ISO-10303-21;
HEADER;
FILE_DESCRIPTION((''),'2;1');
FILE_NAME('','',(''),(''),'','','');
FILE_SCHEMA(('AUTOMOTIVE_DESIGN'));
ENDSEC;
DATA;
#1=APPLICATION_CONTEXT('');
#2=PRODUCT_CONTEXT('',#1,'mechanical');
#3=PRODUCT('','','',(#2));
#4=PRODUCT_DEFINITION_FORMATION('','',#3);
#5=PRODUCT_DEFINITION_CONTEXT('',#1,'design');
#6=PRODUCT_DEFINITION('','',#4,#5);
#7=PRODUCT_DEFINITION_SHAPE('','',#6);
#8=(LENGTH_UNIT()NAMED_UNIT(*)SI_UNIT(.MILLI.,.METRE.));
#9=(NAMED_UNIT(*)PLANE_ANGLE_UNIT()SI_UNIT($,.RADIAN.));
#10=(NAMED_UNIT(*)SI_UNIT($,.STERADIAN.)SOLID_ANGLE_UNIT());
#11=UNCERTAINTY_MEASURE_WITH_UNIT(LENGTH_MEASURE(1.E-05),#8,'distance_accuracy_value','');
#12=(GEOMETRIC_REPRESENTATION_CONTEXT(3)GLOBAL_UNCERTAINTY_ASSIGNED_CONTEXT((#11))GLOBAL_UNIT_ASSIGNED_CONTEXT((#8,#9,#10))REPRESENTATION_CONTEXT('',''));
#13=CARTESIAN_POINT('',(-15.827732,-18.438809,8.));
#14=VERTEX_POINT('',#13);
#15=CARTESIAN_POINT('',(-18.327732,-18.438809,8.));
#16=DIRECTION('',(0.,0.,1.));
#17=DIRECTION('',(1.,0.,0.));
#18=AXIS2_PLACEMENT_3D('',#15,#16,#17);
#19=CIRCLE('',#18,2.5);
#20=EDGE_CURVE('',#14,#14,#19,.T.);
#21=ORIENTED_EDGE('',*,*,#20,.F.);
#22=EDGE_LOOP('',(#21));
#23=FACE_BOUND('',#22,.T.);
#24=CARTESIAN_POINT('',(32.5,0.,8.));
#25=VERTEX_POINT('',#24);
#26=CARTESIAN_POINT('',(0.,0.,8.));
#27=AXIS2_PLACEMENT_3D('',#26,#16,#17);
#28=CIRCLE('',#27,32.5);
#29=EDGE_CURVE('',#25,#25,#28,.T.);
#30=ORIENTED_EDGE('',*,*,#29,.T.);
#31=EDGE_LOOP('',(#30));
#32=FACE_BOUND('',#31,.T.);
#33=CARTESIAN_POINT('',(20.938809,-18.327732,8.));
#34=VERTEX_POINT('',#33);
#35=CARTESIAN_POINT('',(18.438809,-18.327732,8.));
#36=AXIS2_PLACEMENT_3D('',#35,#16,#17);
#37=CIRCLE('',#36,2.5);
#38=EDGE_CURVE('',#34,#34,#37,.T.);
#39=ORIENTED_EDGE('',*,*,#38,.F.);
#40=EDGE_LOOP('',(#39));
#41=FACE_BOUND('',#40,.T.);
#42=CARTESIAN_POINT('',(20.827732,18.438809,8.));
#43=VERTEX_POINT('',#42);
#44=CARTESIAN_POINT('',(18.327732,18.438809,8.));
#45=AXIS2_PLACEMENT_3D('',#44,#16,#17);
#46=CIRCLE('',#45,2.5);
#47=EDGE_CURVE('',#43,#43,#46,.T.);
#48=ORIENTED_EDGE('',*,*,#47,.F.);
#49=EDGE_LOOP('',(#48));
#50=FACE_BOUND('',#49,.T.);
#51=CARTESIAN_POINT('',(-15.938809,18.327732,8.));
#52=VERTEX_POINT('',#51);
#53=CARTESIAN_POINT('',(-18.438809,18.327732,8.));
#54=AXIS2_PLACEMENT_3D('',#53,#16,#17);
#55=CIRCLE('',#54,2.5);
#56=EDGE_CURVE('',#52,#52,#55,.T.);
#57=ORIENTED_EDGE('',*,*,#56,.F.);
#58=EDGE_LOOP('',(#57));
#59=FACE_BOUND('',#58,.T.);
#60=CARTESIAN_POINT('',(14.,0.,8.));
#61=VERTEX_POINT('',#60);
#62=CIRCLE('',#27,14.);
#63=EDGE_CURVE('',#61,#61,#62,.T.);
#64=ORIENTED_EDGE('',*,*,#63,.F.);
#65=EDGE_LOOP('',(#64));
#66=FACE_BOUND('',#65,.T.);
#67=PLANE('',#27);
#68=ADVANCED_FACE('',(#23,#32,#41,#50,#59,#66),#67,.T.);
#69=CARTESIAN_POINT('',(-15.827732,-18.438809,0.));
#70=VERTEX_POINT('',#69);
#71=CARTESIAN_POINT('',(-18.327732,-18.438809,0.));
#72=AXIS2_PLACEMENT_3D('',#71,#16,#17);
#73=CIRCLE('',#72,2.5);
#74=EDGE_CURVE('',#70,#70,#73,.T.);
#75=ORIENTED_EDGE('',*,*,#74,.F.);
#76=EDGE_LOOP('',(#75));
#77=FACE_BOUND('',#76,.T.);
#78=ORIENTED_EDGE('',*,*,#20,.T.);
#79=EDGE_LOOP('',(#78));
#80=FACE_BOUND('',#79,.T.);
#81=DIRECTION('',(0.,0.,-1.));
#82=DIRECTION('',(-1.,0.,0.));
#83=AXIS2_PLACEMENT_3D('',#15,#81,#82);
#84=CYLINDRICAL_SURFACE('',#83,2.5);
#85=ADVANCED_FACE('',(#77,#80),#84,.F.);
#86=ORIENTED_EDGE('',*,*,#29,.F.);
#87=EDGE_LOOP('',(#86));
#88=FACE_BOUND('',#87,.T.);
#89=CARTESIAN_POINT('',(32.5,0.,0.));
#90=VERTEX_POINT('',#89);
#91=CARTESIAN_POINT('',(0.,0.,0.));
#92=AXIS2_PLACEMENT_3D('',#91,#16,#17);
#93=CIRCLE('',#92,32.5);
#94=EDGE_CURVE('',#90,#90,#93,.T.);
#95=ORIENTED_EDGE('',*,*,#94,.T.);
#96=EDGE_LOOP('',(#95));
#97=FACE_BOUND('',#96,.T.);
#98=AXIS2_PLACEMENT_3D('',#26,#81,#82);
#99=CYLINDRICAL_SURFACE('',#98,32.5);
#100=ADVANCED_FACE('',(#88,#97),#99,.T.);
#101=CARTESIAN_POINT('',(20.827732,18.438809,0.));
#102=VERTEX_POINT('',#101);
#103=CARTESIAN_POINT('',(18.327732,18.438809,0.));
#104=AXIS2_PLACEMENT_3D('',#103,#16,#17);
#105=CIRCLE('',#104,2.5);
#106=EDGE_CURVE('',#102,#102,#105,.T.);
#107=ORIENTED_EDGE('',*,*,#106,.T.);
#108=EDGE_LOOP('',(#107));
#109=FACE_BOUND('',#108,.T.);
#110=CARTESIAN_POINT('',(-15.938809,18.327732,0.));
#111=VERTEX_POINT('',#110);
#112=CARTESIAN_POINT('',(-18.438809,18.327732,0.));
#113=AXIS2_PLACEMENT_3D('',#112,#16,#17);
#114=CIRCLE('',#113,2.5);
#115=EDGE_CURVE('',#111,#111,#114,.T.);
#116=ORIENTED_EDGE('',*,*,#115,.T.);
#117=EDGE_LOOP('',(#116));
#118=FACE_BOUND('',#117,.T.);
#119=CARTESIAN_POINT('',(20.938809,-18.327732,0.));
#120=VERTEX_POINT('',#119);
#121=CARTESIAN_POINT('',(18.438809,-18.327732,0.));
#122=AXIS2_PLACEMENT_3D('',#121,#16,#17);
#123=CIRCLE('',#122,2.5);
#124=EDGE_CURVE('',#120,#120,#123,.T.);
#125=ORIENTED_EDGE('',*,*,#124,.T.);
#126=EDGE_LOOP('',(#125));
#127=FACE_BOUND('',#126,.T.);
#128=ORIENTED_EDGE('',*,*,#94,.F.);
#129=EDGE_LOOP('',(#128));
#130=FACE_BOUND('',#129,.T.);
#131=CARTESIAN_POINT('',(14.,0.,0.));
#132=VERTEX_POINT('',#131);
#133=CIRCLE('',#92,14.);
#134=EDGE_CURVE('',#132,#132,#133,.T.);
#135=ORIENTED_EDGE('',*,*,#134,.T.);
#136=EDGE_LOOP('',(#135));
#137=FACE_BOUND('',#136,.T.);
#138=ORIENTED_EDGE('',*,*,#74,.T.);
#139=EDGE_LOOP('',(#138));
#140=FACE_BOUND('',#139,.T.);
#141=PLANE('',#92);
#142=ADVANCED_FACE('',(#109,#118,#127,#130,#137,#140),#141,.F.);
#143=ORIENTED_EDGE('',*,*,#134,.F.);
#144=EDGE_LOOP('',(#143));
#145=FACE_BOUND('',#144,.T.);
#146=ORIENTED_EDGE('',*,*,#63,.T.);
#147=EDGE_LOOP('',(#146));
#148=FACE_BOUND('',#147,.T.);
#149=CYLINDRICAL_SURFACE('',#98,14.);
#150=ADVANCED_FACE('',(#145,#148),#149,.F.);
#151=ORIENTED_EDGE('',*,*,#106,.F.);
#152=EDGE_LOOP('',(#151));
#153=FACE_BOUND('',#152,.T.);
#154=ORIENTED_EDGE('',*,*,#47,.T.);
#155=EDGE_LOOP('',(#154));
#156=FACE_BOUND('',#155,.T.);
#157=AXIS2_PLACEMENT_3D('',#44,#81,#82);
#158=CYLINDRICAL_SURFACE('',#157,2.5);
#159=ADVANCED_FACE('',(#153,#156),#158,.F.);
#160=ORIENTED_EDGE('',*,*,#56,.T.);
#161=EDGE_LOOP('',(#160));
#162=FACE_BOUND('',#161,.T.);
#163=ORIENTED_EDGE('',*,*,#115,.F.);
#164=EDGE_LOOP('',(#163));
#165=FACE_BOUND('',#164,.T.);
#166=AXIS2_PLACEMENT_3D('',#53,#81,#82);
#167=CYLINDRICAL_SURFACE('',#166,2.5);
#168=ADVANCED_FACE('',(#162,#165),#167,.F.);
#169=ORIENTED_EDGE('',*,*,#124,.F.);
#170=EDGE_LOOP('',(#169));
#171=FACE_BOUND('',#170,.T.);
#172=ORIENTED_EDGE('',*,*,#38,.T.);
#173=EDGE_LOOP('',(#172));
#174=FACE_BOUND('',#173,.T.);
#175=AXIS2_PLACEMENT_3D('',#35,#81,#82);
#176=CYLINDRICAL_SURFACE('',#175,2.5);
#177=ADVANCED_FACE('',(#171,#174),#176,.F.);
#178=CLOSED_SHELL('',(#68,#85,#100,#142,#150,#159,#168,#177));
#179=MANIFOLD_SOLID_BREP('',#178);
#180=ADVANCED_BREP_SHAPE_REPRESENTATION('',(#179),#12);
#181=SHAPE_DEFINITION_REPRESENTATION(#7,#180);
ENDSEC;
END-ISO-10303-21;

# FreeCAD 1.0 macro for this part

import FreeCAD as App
import Part
import Sketcher

doc = App.newDocument("Part")
params = doc.addObject("Spreadsheet::Sheet", "Params")
for row, (alias, value) in enumerate([
    ("sketch1_diameter", "65 mm"),
    ("sketch1_diameter2", "5 mm"),
    ("sketch1_diameter3", "28 mm"),
    ("pad1_length", "8 mm"),
], start=1):
    params.set(f"A{row}", alias)
    params.set(f"B{row}", "=" + value)
    params.setAlias(f"B{row}", alias)

body = doc.addObject("PartDesign::Body", "Body")

# Sketch on XY plane
sketch1 = body.newObject("Sketcher::SketchObject", "Sketch")
sketch1.AttachmentSupport = (doc.getObject("XY_Plane"), [""])
sketch1.MapMode = "FlatFace"
sketch1.addGeometry([
    Part.Circle(App.Vector(0, 0, 0), App.Vector(0, 0, 1), 32.5),  # 0
    Part.Circle(App.Vector(-18.3, -18.4, 0), App.Vector(0, 0, 1), 2.5),  # 1
    Part.Circle(App.Vector(18.4, -18.3, 0), App.Vector(0, 0, 1), 2.5),  # 2
    Part.Circle(App.Vector(-18.4, 18.3, 0), App.Vector(0, 0, 1), 2.5),  # 3
    Part.Circle(App.Vector(0, 0, 0), App.Vector(0, 0, 1), 14),  # 4
    Part.Circle(App.Vector(18.3, 18.4, 0), App.Vector(0, 0, 1), 2.5),  # 5
], False)
sketch1.addConstraint([
    Sketcher.Constraint("Coincident", 0, 3, -1, 1),
    Sketcher.Constraint("Coincident", 4, 3, -1, 1),
    Sketcher.Constraint("Equal", 1, 2),
    Sketcher.Constraint("Equal", 2, 3),
    Sketcher.Constraint("Equal", 3, 5),
    Sketcher.Constraint("Symmetric", 2, 3, 3, 3, -1, 1),
    Sketcher.Constraint("Symmetric", 1, 3, 5, 3, -1, 1),
    Sketcher.Constraint("Diameter", 0, 65.0),
    Sketcher.Constraint("Diameter", 1, 5.0),
    Sketcher.Constraint("Diameter", 4, 28.0),
    Sketcher.Constraint("DistanceX", 1, 3, -1, 1, 18.327732),
    Sketcher.Constraint("DistanceY", 1, 3, -1, 1, 18.438809),
    Sketcher.Constraint("DistanceX", -1, 1, 2, 3, 18.438809),
    Sketcher.Constraint("DistanceY", 2, 3, -1, 1, 18.327732),
])
sketch1.setExpression("Constraints[7]", "Params.sketch1_diameter")
sketch1.setExpression("Constraints[8]", "Params.sketch1_diameter2")
sketch1.setExpression("Constraints[9]", "Params.sketch1_diameter3")
pad1 = body.newObject("PartDesign::Pad", "Pad")
pad1.Profile = sketch1
pad1.setExpression("Length", "Params.pad1_length")

doc.recompute()
